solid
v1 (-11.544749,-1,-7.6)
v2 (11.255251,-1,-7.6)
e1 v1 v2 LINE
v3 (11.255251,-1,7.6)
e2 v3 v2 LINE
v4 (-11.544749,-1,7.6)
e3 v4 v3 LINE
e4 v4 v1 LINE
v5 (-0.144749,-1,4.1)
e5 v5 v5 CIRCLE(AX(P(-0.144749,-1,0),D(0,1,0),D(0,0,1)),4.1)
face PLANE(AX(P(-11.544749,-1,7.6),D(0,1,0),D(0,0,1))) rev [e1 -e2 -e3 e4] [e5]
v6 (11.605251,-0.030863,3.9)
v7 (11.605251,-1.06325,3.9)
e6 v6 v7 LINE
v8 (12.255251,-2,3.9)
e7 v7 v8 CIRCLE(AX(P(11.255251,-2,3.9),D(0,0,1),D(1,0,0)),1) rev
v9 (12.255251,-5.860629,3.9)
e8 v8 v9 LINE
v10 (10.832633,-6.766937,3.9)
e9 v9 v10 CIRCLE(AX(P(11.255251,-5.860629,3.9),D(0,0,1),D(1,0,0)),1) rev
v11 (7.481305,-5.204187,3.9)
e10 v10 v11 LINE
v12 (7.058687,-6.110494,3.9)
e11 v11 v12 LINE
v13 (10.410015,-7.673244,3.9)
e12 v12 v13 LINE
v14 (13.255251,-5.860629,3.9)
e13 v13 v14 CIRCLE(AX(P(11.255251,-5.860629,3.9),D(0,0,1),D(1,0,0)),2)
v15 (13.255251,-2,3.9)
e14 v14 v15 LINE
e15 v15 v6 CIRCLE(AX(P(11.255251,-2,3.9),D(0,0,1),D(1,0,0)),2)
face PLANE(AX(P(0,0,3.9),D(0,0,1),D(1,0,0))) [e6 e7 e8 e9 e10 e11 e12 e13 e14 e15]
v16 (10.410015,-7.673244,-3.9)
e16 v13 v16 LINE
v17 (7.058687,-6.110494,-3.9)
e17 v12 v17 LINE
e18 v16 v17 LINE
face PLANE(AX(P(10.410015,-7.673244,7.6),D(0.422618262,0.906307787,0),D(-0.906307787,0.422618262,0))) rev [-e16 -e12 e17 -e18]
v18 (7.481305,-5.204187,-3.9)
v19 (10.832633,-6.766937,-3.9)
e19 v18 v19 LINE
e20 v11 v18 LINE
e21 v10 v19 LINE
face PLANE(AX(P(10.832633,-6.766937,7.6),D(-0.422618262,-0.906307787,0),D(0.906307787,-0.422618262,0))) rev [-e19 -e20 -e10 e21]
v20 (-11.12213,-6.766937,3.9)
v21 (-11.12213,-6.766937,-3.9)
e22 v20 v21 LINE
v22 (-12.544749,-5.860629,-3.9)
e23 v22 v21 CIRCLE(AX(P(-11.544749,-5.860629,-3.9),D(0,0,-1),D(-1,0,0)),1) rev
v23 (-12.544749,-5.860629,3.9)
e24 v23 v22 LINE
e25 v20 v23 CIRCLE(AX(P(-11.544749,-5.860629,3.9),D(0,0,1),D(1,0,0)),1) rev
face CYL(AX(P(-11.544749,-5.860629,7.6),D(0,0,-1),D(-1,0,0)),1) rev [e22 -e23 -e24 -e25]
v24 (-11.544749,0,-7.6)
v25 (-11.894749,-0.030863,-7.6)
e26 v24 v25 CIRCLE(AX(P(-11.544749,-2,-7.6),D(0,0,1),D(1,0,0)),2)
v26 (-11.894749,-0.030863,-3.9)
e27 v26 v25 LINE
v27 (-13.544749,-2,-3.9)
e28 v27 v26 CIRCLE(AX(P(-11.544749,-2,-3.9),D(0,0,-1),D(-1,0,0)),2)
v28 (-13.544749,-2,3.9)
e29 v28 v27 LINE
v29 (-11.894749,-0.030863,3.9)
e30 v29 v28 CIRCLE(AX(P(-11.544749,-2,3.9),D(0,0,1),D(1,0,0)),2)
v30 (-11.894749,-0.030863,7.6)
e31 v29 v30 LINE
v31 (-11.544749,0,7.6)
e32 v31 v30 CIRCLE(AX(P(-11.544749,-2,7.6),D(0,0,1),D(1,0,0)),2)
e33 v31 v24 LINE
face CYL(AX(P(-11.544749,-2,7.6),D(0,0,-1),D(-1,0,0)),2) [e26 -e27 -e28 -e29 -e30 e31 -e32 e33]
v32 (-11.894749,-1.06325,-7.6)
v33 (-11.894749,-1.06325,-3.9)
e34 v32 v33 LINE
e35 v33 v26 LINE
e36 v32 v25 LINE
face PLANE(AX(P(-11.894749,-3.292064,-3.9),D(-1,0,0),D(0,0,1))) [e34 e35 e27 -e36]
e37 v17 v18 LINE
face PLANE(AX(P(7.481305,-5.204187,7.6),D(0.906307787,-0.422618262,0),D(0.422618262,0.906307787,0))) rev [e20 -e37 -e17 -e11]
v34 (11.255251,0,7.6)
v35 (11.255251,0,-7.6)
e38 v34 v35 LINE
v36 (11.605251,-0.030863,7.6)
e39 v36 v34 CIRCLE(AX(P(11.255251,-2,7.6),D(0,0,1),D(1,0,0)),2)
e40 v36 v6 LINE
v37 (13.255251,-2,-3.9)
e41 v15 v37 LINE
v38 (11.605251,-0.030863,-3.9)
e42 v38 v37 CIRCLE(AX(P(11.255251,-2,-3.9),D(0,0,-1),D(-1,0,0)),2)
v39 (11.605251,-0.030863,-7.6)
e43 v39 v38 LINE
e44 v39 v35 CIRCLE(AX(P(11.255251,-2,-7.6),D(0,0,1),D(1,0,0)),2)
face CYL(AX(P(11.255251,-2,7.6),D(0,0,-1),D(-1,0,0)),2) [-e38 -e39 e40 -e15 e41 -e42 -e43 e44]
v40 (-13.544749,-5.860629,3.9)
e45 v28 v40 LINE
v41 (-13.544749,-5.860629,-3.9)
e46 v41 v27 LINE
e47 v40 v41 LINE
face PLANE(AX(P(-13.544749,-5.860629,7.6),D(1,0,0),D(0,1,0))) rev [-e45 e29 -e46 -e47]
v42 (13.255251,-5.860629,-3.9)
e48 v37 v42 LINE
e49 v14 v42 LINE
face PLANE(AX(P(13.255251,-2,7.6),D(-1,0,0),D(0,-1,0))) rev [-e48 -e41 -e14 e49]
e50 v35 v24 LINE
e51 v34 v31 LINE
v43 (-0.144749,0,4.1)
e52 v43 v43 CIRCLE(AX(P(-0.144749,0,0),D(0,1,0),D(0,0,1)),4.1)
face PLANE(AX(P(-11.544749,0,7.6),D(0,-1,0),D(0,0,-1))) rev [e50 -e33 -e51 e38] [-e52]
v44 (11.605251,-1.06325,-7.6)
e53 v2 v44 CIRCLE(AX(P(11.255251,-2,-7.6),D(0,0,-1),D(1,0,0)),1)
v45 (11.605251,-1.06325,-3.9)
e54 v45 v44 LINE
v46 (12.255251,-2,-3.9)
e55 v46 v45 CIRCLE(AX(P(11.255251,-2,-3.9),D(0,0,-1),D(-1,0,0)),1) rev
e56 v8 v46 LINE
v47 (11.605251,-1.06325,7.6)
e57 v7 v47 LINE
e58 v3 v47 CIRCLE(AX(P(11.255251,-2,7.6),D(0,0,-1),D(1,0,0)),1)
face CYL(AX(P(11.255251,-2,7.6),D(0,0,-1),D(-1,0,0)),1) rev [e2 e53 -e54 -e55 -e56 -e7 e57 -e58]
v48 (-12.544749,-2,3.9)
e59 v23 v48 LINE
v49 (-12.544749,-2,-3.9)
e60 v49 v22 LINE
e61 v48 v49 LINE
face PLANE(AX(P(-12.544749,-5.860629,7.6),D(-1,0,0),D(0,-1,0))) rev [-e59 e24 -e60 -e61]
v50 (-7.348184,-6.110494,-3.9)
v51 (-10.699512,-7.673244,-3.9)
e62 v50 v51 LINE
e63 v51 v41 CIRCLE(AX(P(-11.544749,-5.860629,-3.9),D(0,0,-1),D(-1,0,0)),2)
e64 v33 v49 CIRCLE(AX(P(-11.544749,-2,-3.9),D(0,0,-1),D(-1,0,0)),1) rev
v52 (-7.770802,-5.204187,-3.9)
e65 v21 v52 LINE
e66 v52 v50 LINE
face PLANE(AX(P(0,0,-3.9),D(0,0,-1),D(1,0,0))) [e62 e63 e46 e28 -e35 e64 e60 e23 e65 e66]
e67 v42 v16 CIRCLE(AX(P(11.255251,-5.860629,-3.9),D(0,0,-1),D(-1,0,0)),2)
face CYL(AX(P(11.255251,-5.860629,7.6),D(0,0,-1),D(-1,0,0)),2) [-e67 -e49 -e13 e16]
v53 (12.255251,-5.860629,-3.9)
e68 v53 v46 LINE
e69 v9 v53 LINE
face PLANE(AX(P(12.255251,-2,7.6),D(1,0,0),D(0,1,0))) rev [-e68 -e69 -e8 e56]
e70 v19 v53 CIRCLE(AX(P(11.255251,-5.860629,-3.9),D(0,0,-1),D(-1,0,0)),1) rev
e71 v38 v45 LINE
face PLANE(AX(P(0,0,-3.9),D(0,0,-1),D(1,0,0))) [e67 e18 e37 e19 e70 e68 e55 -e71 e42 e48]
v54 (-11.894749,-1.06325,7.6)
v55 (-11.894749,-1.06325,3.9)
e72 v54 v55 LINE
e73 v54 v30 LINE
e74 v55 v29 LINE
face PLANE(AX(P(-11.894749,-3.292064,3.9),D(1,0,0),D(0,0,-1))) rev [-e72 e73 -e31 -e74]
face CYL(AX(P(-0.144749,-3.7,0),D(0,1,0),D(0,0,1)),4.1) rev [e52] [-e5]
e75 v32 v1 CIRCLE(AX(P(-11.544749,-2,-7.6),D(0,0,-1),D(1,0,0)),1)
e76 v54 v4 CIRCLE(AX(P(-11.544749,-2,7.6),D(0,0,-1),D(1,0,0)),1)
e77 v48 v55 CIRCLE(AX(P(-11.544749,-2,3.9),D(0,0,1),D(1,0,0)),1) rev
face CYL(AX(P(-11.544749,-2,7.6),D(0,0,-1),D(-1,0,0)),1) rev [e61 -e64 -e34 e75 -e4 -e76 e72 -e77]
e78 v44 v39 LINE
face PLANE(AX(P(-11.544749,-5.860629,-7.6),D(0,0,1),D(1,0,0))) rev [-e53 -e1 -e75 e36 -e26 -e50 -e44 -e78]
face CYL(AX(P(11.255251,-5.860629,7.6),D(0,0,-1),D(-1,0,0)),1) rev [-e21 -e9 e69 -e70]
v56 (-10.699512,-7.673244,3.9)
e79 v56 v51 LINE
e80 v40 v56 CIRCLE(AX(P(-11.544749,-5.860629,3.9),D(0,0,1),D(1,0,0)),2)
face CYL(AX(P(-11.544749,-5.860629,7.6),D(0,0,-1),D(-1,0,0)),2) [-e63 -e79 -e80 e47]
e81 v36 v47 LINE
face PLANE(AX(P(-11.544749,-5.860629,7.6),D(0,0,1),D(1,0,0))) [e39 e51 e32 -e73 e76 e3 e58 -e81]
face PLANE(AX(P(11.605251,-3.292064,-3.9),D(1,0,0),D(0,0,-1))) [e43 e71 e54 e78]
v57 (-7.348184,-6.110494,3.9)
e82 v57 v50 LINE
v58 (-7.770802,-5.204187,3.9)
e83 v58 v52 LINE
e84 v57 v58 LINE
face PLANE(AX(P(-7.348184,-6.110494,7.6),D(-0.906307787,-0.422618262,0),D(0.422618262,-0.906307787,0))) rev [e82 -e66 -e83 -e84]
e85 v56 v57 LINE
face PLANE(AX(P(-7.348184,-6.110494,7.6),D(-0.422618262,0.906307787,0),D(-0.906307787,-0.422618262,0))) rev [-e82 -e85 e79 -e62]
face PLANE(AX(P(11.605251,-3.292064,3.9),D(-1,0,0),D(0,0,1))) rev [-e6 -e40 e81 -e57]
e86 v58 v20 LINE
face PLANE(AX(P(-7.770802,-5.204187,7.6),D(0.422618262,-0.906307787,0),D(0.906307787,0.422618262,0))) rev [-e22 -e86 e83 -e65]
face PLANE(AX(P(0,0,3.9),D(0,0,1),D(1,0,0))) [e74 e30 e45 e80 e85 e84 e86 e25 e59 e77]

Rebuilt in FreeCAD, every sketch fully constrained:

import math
import FreeCAD as App
import Part
import Sketcher

V = App.Vector
Q = App.Units.Quantity

doc = App.newDocument("Part")
body = doc.addObject("PartDesign::Body", "Body")

# Sketch on XY plane
sketch1 = body.newObject("Sketcher::SketchObject", "Sketch")
sketch1.AttachmentSupport = (doc.getObject("XY_Plane"), [""])
sketch1.MapMode = "FlatFace"
sketch1.addGeometry(Part.LineSegment(V(-10.7, -7.7, 0), V(-7.3, -6.1, 0)), False)
sketch1.addGeometry(Part.LineSegment(V(-7.3, -6.1, 0), V(-7.8, -5.2, 0)), False)
sketch1.addGeometry(Part.LineSegment(V(-7.8, -5.2, 0), V(-11.1, -6.8, 0)), False)
sketch1.addGeometry(Part.ArcOfCircle(Part.Circle(V(-11.5, -5.9, 0), V(0, 0, 1), 1), math.radians(180), math.radians(295)), False)
sketch1.addGeometry(Part.LineSegment(V(-12.5, -5.9, 0), V(-12.5, -2, 0)), False)
sketch1.addGeometry(Part.ArcOfCircle(Part.Circle(V(-11.5, -2, 0), V(0, 0, 1), 1), math.radians(90), math.radians(180)), False)
sketch1.addGeometry(Part.LineSegment(V(-11.5, -1, 0), V(11.3, -1, 0)), False)
sketch1.addGeometry(Part.ArcOfCircle(Part.Circle(V(11.3, -2, 0), V(0, 0, 1), 1), math.radians(0), math.radians(90)), False)
sketch1.addGeometry(Part.LineSegment(V(12.3, -2, 0), V(12.3, -5.9, 0)), False)
sketch1.addGeometry(Part.ArcOfCircle(Part.Circle(V(11.3, -5.9, 0), V(0, 0, 1), 1), math.radians(-115), math.radians(0)), False)
sketch1.addGeometry(Part.LineSegment(V(10.8, -6.8, 0), V(7.5, -5.2, 0)), False)
sketch1.addGeometry(Part.LineSegment(V(7.5, -5.2, 0), V(7.1, -6.1, 0)), False)
sketch1.addGeometry(Part.LineSegment(V(7.1, -6.1, 0), V(10.4, -7.7, 0)), False)
sketch1.addGeometry(Part.ArcOfCircle(Part.Circle(V(11.3, -5.9, 0), V(0, 0, 1), 2), math.radians(-115), math.radians(0)), False)
sketch1.addGeometry(Part.LineSegment(V(13.3, -5.9, 0), V(13.3, -2, 0)), False)
sketch1.addGeometry(Part.ArcOfCircle(Part.Circle(V(11.3, -2, 0), V(0, 0, 1), 2), math.radians(0), math.radians(90)), False)
sketch1.addGeometry(Part.LineSegment(V(11.3, 0, 0), V(-11.5, 0, 0)), False)
sketch1.addGeometry(Part.ArcOfCircle(Part.Circle(V(-11.5, -2, 0), V(0, 0, 1), 2), math.radians(90), math.radians(180)), False)
sketch1.addGeometry(Part.LineSegment(V(-13.5, -2, 0), V(-13.5, -5.9, 0)), False)
sketch1.addGeometry(Part.ArcOfCircle(Part.Circle(V(-11.5, -5.9, 0), V(0, 0, 1), 2), math.radians(-180), math.radians(-65)), False)
sketch1.addConstraint(Sketcher.Constraint("Coincident", 0, 2, 1, 1))
sketch1.addConstraint(Sketcher.Constraint("Coincident", 1, 2, 2, 1))
sketch1.addConstraint(Sketcher.Constraint("Tangent", 2, 2, 3, 2))
sketch1.addConstraint(Sketcher.Constraint("Tangent", 3, 1, 4, 1))
sketch1.addConstraint(Sketcher.Constraint("Tangent", 4, 2, 5, 2))
sketch1.addConstraint(Sketcher.Constraint("Tangent", 5, 1, 6, 1))
sketch1.addConstraint(Sketcher.Constraint("Tangent", 6, 2, 7, 2))
sketch1.addConstraint(Sketcher.Constraint("Tangent", 7, 1, 8, 1))
sketch1.addConstraint(Sketcher.Constraint("Tangent", 8, 2, 9, 2))
sketch1.addConstraint(Sketcher.Constraint("Tangent", 9, 1, 10, 1))
sketch1.addConstraint(Sketcher.Constraint("Coincident", 10, 2, 11, 1))
sketch1.addConstraint(Sketcher.Constraint("Coincident", 11, 2, 12, 1))
sketch1.addConstraint(Sketcher.Constraint("Tangent", 12, 2, 13, 1))
sketch1.addConstraint(Sketcher.Constraint("Tangent", 13, 2, 14, 1))
sketch1.addConstraint(Sketcher.Constraint("Tangent", 14, 2, 15, 1))
sketch1.addConstraint(Sketcher.Constraint("Tangent", 15, 2, 16, 1))
sketch1.addConstraint(Sketcher.Constraint("Tangent", 16, 2, 17, 1))
sketch1.addConstraint(Sketcher.Constraint("Tangent", 17, 2, 18, 1))
sketch1.addConstraint(Sketcher.Constraint("Tangent", 18, 2, 19, 1))
sketch1.addConstraint(Sketcher.Constraint("Tangent", 19, 2, 0, 1))
sketch1.addConstraint(Sketcher.Constraint("Vertical", 4))
sketch1.addConstraint(Sketcher.Constraint("Horizontal", 6))
sketch1.addConstraint(Sketcher.Constraint("Vertical", 8))
sketch1.addConstraint(Sketcher.Constraint("Vertical", 14))
sketch1.addConstraint(Sketcher.Constraint("Horizontal", 16))
sketch1.addConstraint(Sketcher.Constraint("Vertical", 18))
sketch1.addConstraint(Sketcher.Constraint("Coincident", 13, 3, 9, 3))
sketch1.addConstraint(Sketcher.Constraint("Coincident", 15, 3, 7, 3))
sketch1.addConstraint(Sketcher.Constraint("Coincident", 17, 3, 5, 3))
sketch1.addConstraint(Sketcher.Constraint("Coincident", 19, 3, 3, 3))
sketch1.addConstraint(Sketcher.Constraint("Equal", 3, 5))
sketch1.addConstraint(Sketcher.Constraint("Equal", 5, 7))
sketch1.addConstraint(Sketcher.Constraint("Equal", 7, 9))
sketch1.addConstraint(Sketcher.Constraint("PointOnObject", 15, 2, -1))
sketch1.addConstraint(Sketcher.Constraint("Perpendicular", 0, 1))
sketch1.addConstraint(Sketcher.Constraint("Perpendicular", 1, 2))
sketch1.addConstraint(Sketcher.Constraint("Perpendicular", 10, 11))
sketch1.addConstraint(Sketcher.Constraint("Perpendicular", 11, 12))
sketch1.addConstraint(Sketcher.Constraint("Horizontal", 3, 3, 9, 3))
sketch1.addConstraint(Sketcher.Constraint("Horizontal", 2, 2, 9, 1))
sketch1.addConstraint(Sketcher.Constraint("Horizontal", 1, 2, 10, 2))
sketch1.addConstraint(Sketcher.Constraint("Radius", 3, 1.0))
sketch1.addConstraint(Sketcher.Constraint("Radius", 13, 2.0))
sketch1.addConstraint(Sketcher.Constraint("Angle", 0, Q("25 deg")))
sketch1.addConstraint(Sketcher.Constraint("DistanceX", 6, 1, 6, 2, 22.8))
sketch1.addConstraint(Sketcher.Constraint("DistanceY", 4, 1, 4, 2, 3.860629))
sketch1.addConstraint(Sketcher.Constraint("Distance", 0, 3.697781))
sketch1.addConstraint(Sketcher.Constraint("DistanceX", 3, 3, -1, 1, 11.544749))
pad1 = body.newObject("PartDesign::Pad", "Pad")
pad1.Profile = sketch1
pad1.Length = 15.2
pad1.Midplane = True

# Sketch on XY plane
sketch2 = body.newObject("Sketcher::SketchObject", "Sketch001")
sketch2.AttachmentSupport = (doc.getObject("XY_Plane"), [""])
sketch2.MapMode = "FlatFace"
sketch2.AttachmentOffset = App.Placement(V(0, 0, 7.6), App.Rotation())
sketch2.addGeometry(Part.LineSegment(V(-5.7, -3.3, 0), V(-11.9, -3.3, 0)), False)
sketch2.addGeometry(Part.LineSegment(V(-11.9, -3.3, 0), V(-11.9, 0.9, 0)), False)
sketch2.addGeometry(Part.LineSegment(V(-11.9, 0.9, 0), V(-21.3, 0.9, 0)), False)
sketch2.addGeometry(Part.LineSegment(V(-21.3, 0.9, 0), V(-21.3, -8.8, 0)), False)
sketch2.addGeometry(Part.LineSegment(V(-21.3, -8.8, 0), V(-5.7, -8.8, 0)), False)
sketch2.addGeometry(Part.LineSegment(V(-5.7, -8.8, 0), V(-5.7, -3.3, 0)), False)
sketch2.addGeometry(Part.LineSegment(V(5.4, -3.3, 0), V(5.4, -8.8, 0)), False)
sketch2.addGeometry(Part.LineSegment(V(5.4, -8.8, 0), V(21, -8.8, 0)), False)
sketch2.addGeometry(Part.LineSegment(V(21, -8.8, 0), V(21, 0.9, 0)), False)
sketch2.addGeometry(Part.LineSegment(V(21, 0.9, 0), V(11.6, 0.9, 0)), False)
sketch2.addGeometry(Part.LineSegment(V(11.6, 0.9, 0), V(11.6, -3.3, 0)), False)
sketch2.addGeometry(Part.LineSegment(V(11.6, -3.3, 0), V(5.4, -3.3, 0)), False)
sketch2.addConstraint(Sketcher.Constraint("Coincident", 0, 2, 1, 1))
sketch2.addConstraint(Sketcher.Constraint("Coincident", 1, 2, 2, 1))
sketch2.addConstraint(Sketcher.Constraint("Coincident", 2, 2, 3, 1))
sketch2.addConstraint(Sketcher.Constraint("Coincident", 3, 2, 4, 1))
sketch2.addConstraint(Sketcher.Constraint("Coincident", 4, 2, 5, 1))
sketch2.addConstraint(Sketcher.Constraint("Coincident", 5, 2, 0, 1))
sketch2.addConstraint(Sketcher.Constraint("Coincident", 6, 2, 7, 1))
sketch2.addConstraint(Sketcher.Constraint("Coincident", 7, 2, 8, 1))
sketch2.addConstraint(Sketcher.Constraint("Coincident", 8, 2, 9, 1))
sketch2.addConstraint(Sketcher.Constraint("Coincident", 9, 2, 10, 1))
sketch2.addConstraint(Sketcher.Constraint("Coincident", 10, 2, 11, 1))
sketch2.addConstraint(Sketcher.Constraint("Coincident", 11, 2, 6, 1))
sketch2.addConstraint(Sketcher.Constraint("Horizontal", 0))
sketch2.addConstraint(Sketcher.Constraint("Vertical", 1))
sketch2.addConstraint(Sketcher.Constraint("Horizontal", 2))
sketch2.addConstraint(Sketcher.Constraint("Vertical", 3))
sketch2.addConstraint(Sketcher.Constraint("Horizontal", 4))
sketch2.addConstraint(Sketcher.Constraint("Vertical", 5))
sketch2.addConstraint(Sketcher.Constraint("Vertical", 6))
sketch2.addConstraint(Sketcher.Constraint("Horizontal", 7))
sketch2.addConstraint(Sketcher.Constraint("Vertical", 8))
sketch2.addConstraint(Sketcher.Constraint("Horizontal", 9))
sketch2.addConstraint(Sketcher.Constraint("Vertical", 10))
sketch2.addConstraint(Sketcher.Constraint("Horizontal", 11))
sketch2.addConstraint(Sketcher.Constraint("Horizontal", 4, 2, 6, 2))
sketch2.addConstraint(Sketcher.Constraint("Horizontal", 2, 2, 8, 2))
sketch2.addConstraint(Sketcher.Constraint("Horizontal", 5, 2, 10, 2))
sketch2.addConstraint(Sketcher.Constraint("Equal", 4, 7))
sketch2.addConstraint(Sketcher.Constraint("Equal", 2, 9))
sketch2.addConstraint(Sketcher.Constraint("DistanceX", 2, 2, 2, 1, 9.409662))
sketch2.addConstraint(Sketcher.Constraint("DistanceY", 1, 1, 1, 2, 4.23624))
sketch2.addConstraint(Sketcher.Constraint("DistanceY", 3, 2, -1, 1, 8.789099))
sketch2.addConstraint(Sketcher.Constraint("DistanceX", 0, 2, 0, 1, 6.244004))
sketch2.addConstraint(Sketcher.Constraint("DistanceY", 3, 2, 3, 1, 9.733274))
sketch2.addConstraint(Sketcher.Constraint("DistanceX", 0, 2, -1, 1, 11.894749))
sketch2.addConstraint(Sketcher.Constraint("DistanceX", -1, 1, 9, 2, 11.605251))
pocket1 = body.newObject("PartDesign::Pocket", "Pocket")
pocket1.Profile = sketch2
pocket1.Length = 3.7
doc.recompute()

mirrored = body.newObject("PartDesign::Mirrored", "Mirrored")
mirrored.Originals = [pocket1]
mirrored.MirrorPlane = (doc.getObject("XY_Plane"), [""])
body.Tip = mirrored

# Sketch on XZ plane
sketch3 = body.newObject("Sketcher::SketchObject", "Sketch002")
sketch3.AttachmentSupport = (doc.getObject("XZ_Plane"), [""])
sketch3.MapMode = "FlatFace"
sketch3.addGeometry(Part.Circle(V(-0.1, 0, 0), V(0, 0, 1), 4.1), False)
sketch3.addConstraint(Sketcher.Constraint("PointOnObject", 0, 3, -1))
sketch3.addConstraint(Sketcher.Constraint("Diameter", 0, 8.2))
sketch3.addConstraint(Sketcher.Constraint("DistanceX", 0, 3, -1, 1, 0.144749))
pocket2 = body.newObject("PartDesign::Pocket", "Pocket001")
pocket2.Profile = sketch3
pocket2.Length = 3.7
pocket2.Reversed = True

doc.recompute()
